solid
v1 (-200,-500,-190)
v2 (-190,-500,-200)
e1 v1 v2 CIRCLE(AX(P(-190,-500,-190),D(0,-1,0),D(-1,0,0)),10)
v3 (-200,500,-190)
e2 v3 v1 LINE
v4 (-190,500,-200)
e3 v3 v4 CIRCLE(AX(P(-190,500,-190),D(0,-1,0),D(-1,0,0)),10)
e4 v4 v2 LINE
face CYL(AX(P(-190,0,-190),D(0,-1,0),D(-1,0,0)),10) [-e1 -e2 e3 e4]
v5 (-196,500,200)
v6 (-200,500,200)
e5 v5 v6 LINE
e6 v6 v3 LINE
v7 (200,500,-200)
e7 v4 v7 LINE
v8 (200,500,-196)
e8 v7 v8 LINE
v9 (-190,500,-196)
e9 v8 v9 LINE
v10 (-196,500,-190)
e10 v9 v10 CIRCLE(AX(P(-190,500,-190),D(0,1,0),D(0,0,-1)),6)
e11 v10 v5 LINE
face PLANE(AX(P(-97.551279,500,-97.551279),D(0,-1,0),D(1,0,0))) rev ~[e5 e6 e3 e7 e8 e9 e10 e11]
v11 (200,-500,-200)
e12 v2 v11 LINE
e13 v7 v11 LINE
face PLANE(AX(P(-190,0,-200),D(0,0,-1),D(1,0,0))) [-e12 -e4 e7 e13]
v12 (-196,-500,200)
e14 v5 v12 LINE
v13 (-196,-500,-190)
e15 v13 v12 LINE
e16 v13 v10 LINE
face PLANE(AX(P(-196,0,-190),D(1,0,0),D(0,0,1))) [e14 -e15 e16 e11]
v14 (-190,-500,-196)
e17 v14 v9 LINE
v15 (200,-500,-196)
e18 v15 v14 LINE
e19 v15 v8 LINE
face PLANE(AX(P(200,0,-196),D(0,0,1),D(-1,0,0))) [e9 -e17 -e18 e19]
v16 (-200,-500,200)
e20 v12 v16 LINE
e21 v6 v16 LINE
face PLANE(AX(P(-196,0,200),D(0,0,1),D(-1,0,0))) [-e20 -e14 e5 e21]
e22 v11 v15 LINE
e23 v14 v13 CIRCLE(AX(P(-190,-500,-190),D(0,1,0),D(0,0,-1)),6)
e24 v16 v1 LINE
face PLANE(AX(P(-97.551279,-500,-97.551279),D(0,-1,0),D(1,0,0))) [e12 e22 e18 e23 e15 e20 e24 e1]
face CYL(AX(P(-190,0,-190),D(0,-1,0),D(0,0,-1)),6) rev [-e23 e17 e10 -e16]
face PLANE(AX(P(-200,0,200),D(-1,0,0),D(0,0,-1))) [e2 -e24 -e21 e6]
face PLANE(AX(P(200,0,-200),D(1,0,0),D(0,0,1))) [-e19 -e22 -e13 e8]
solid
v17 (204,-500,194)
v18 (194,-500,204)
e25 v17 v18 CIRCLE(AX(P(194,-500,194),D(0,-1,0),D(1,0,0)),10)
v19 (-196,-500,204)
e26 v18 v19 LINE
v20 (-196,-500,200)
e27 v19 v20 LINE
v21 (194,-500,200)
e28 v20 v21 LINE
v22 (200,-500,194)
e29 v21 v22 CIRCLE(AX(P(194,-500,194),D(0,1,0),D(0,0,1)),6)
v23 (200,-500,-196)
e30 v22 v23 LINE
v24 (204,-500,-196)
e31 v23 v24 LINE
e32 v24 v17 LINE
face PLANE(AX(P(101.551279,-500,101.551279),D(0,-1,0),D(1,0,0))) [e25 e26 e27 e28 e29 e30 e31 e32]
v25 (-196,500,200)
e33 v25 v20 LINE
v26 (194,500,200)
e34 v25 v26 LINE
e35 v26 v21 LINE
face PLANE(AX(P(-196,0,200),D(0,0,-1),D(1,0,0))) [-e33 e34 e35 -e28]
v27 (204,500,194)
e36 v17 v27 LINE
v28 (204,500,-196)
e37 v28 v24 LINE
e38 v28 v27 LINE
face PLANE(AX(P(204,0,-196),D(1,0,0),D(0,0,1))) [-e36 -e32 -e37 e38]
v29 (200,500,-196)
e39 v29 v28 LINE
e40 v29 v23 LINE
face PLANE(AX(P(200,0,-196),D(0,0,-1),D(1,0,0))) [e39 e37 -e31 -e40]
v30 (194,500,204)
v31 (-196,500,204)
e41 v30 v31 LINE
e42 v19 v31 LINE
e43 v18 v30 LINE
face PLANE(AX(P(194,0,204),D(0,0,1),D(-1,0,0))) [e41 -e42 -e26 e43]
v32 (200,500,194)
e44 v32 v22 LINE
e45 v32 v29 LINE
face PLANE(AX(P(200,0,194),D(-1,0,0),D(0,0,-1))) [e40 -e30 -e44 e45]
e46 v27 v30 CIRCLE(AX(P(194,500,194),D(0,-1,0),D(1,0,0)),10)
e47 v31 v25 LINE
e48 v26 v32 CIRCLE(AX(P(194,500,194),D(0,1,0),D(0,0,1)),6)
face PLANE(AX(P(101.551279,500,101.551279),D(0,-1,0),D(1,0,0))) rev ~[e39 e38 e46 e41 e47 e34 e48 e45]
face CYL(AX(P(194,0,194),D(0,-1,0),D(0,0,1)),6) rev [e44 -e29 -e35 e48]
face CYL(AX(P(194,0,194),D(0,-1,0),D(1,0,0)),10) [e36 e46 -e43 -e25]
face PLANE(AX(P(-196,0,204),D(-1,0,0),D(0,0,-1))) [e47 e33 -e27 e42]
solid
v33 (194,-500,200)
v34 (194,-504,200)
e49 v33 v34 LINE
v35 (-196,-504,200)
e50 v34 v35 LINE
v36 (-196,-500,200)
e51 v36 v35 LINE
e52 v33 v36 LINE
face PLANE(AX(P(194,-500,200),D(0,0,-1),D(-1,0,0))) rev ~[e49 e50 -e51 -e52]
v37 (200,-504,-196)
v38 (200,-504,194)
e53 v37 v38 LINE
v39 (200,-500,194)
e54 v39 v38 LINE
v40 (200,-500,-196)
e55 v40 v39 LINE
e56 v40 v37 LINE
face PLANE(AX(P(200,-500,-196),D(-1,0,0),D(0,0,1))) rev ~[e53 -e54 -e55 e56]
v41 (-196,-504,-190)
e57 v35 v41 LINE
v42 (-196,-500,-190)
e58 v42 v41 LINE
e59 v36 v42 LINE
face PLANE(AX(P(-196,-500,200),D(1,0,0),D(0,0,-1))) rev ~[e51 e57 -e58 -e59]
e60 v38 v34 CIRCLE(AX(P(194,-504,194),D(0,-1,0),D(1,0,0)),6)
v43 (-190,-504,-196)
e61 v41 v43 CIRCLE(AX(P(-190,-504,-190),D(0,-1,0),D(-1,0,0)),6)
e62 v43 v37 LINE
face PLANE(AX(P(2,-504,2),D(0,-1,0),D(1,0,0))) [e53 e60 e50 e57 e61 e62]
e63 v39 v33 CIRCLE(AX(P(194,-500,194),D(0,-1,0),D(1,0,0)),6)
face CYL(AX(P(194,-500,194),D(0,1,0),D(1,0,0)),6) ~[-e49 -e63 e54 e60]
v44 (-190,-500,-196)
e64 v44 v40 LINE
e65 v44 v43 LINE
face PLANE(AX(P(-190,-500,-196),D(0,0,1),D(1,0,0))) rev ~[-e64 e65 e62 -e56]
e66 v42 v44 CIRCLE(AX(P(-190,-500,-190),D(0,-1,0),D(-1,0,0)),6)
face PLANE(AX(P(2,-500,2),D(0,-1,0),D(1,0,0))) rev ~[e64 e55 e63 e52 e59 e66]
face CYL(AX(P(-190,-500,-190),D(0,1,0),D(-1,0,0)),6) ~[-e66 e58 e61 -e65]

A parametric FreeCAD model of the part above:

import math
import FreeCAD as App
import Part
import Sketcher

V = App.Vector

doc = App.newDocument("Part")
body = doc.addObject("PartDesign::Body", "Body")

# Sketch on XZ plane
sketch1 = body.newObject("Sketcher::SketchObject", "Sketch")
sketch1.AttachmentSupport = (doc.getObject("XZ_Plane"), [""])
sketch1.MapMode = "FlatFace"
sketch1.addGeometry([
    Part.LineSegment(V(-196, 204, 0), V(-196, 200, 0)),  # 0
    Part.LineSegment(V(-196, 200, 0), V(194, 200, 0)),  # 1
    Part.ArcOfCircle(Part.Circle(V(194, 194, 0), V(0, 0, 1), 6), math.radians(0), math.radians(90)),  # 2
    Part.LineSegment(V(200, 194, 0), V(200, -196, 0)),  # 3
    Part.LineSegment(V(200, -196, 0), V(204, -196, 0)),  # 4
    Part.LineSegment(V(204, -196, 0), V(204, 194, 0)),  # 5
    Part.ArcOfCircle(Part.Circle(V(194, 194, 0), V(0, 0, 1), 10), math.radians(0), math.radians(90)),  # 6
    Part.LineSegment(V(194, 204, 0), V(-196, 204, 0)),  # 7
], False)
sketch1.addConstraint([
    Sketcher.Constraint("Coincident", 0, 2, 1, 1),
    Sketcher.Constraint("Tangent", 1, 2, 2, 2),
    Sketcher.Constraint("Tangent", 2, 1, 3, 1),
    Sketcher.Constraint("Coincident", 3, 2, 4, 1),
    Sketcher.Constraint("Coincident", 4, 2, 5, 1),
    Sketcher.Constraint("Tangent", 5, 2, 6, 1),
    Sketcher.Constraint("Tangent", 6, 2, 7, 1),
    Sketcher.Constraint("Coincident", 7, 2, 0, 1),
    Sketcher.Constraint("Vertical", 0),
    Sketcher.Constraint("Horizontal", 1),
    Sketcher.Constraint("Vertical", 3),
    Sketcher.Constraint("Horizontal", 4),
    Sketcher.Constraint("Vertical", 5),
    Sketcher.Constraint("Horizontal", 7),
    Sketcher.Constraint("Coincident", 6, 3, 2, 3),
    Sketcher.Constraint("Equal", 7, 3),
    Sketcher.Constraint("Radius", 2, 6.0),
    Sketcher.Constraint("Radius", 6, 10.0),
    Sketcher.Constraint("DistanceX", 1, 1, 1, 2, 390.0),
    Sketcher.Constraint("DistanceX", -1, 1, 2, 3, 194.0),
    Sketcher.Constraint("DistanceY", -1, 1, 2, 3, 194.0),
])
pad1 = body.newObject("PartDesign::Pad", "Pad")
pad1.Profile = sketch1
pad1.Length = 1000
pad1.Midplane = True
body2 = doc.addObject("PartDesign::Body", "Body001")

# Sketch on XZ plane
sketch2 = body2.newObject("Sketcher::SketchObject", "Sketch001")
sketch2.AttachmentSupport = (doc.getObject("XZ_Plane001"), [""])
sketch2.MapMode = "FlatFace"
sketch2.addGeometry([
    Part.LineSegment(V(-196, -190, 0), V(-196, 200, 0)),  # 0
    Part.LineSegment(V(-196, 200, 0), V(-200, 200, 0)),  # 1
    Part.LineSegment(V(-200, 200, 0), V(-200, -190, 0)),  # 2
    Part.ArcOfCircle(Part.Circle(V(-190, -190, 0), V(0, 0, 1), 10), math.radians(180), math.radians(270)),  # 3
    Part.LineSegment(V(-190, -200, 0), V(200, -200, 0)),  # 4
    Part.LineSegment(V(200, -200, 0), V(200, -196, 0)),  # 5
    Part.LineSegment(V(200, -196, 0), V(-190, -196, 0)),  # 6
    Part.ArcOfCircle(Part.Circle(V(-190, -190, 0), V(0, 0, 1), 6), math.radians(180), math.radians(270)),  # 7
], False)
sketch2.addConstraint([
    Sketcher.Constraint("Coincident", 0, 2, 1, 1),
    Sketcher.Constraint("Coincident", 1, 2, 2, 1),
    Sketcher.Constraint("Tangent", 2, 2, 3, 1),
    Sketcher.Constraint("Tangent", 3, 2, 4, 1),
    Sketcher.Constraint("Coincident", 4, 2, 5, 1),
    Sketcher.Constraint("Coincident", 5, 2, 6, 1),
    Sketcher.Constraint("Tangent", 6, 2, 7, 2),
    Sketcher.Constraint("Tangent", 7, 1, 0, 1),
    Sketcher.Constraint("Vertical", 0),
    Sketcher.Constraint("Horizontal", 1),
    Sketcher.Constraint("Vertical", 2),
    Sketcher.Constraint("Horizontal", 4),
    Sketcher.Constraint("Vertical", 5),
    Sketcher.Constraint("Horizontal", 6),
    Sketcher.Constraint("Coincident", 7, 3, 3, 3),
    Sketcher.Constraint("Symmetric", 1, 2, 4, 2, -1, 1),
    Sketcher.Constraint("Equal", 6, 0),
    Sketcher.Constraint("Radius", 3, 10.0),
    Sketcher.Constraint("Radius", 7, 6.0),
    Sketcher.Constraint("DistanceX", 4, 1, 4, 2, 390.0),
])
pad2 = body2.newObject("PartDesign::Pad", "Pad001")
pad2.Profile = sketch2
pad2.Length = 1000
pad2.Midplane = True
body3 = doc.addObject("PartDesign::Body", "Body002")

# Sketch on XZ plane
sketch3 = body3.newObject("Sketcher::SketchObject", "Sketch002")
sketch3.AttachmentSupport = (doc.getObject("XZ_Plane002"), [""])
sketch3.MapMode = "FlatFace"
sketch3.AttachmentOffset = App.Placement(V(0, 0, 500), App.Rotation())
sketch3.addGeometry([
    Part.LineSegment(V(194, 200, 0), V(-196, 200, 0)),  # 0
    Part.LineSegment(V(-196, 200, 0), V(-196, -190, 0)),  # 1
    Part.ArcOfCircle(Part.Circle(V(-190, -190, 0), V(0, 0, 1), 6), math.radians(180), math.radians(270)),  # 2
    Part.LineSegment(V(-190, -196, 0), V(200, -196, 0)),  # 3
    Part.LineSegment(V(200, -196, 0), V(200, 194, 0)),  # 4
    Part.ArcOfCircle(Part.Circle(V(194, 194, 0), V(0, 0, 1), 6), math.radians(0), math.radians(90)),  # 5
], False)
sketch3.addConstraint([
    Sketcher.Constraint("Coincident", 0, 2, 1, 1),
    Sketcher.Constraint("Tangent", 1, 2, 2, 1),
    Sketcher.Constraint("Tangent", 2, 2, 3, 1),
    Sketcher.Constraint("Coincident", 3, 2, 4, 1),
    Sketcher.Constraint("Tangent", 4, 2, 5, 1),
    Sketcher.Constraint("Tangent", 5, 2, 0, 1),
    Sketcher.Constraint("Horizontal", 0),
    Sketcher.Constraint("Vertical", 1),
    Sketcher.Constraint("Horizontal", 3),
    Sketcher.Constraint("Vertical", 4),
    Sketcher.Constraint("Equal", 2, 5),
    Sketcher.Constraint("Equal", 3, 1),
    Sketcher.Constraint("Radius", 2, 6.0),
    Sketcher.Constraint("DistanceX", 0, 2, 0, 1, 390.0),
    Sketcher.Constraint("DistanceX", 2, 3, -1, 1, 190.0),
    Sketcher.Constraint("DistanceY", 2, 3, -1, 1, 190.0),
])
pad3 = body3.newObject("PartDesign::Pad", "Pad002")
pad3.Profile = sketch3
pad3.Length = 4

doc.recompute()
